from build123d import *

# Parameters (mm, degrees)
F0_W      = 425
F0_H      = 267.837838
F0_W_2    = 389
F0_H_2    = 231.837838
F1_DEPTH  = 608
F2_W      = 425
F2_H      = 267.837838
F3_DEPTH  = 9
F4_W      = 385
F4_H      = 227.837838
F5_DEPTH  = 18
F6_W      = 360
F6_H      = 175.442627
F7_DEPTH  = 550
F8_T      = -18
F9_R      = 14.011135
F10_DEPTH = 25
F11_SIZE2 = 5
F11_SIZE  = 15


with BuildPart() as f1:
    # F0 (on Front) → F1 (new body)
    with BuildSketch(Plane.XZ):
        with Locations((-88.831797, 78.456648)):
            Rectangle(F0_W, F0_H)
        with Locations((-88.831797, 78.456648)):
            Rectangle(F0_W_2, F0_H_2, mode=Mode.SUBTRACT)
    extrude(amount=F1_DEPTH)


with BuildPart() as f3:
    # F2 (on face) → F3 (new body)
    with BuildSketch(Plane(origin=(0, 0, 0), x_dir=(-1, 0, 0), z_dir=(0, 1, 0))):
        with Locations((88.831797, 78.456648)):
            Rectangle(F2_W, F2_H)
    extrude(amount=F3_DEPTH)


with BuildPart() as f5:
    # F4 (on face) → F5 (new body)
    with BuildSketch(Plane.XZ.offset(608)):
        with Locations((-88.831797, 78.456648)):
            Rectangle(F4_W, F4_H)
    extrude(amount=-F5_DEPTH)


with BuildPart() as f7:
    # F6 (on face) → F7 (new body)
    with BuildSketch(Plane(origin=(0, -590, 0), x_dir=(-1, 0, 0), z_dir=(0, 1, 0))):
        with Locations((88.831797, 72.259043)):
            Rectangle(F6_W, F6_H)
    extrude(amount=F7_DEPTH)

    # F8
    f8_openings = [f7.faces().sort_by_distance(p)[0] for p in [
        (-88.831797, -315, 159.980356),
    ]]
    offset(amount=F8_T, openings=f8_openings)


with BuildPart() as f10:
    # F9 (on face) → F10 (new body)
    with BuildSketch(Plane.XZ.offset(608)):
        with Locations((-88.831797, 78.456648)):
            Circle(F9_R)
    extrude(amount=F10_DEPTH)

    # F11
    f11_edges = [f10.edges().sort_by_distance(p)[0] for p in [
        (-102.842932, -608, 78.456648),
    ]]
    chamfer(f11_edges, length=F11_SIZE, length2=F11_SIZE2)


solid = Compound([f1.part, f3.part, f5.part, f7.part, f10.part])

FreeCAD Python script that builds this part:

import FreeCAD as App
import Part
import Sketcher
Q = App.Units.Quantity


def edges_at(feature, points):
    """Names of the edges that pass closest to the given points."""
    edges = feature.Shape.Edges
    near = lambda p: min(range(len(edges)), key=lambda i: edges[i].distToShape(Part.Vertex(*p))[0])
    return sorted({f"Edge{near(p) + 1}" for p in points})


def faces_at(feature, points):
    """Names of the faces that lie closest to the given points."""
    faces = feature.Shape.Faces
    near = lambda p: min(range(len(faces)), key=lambda i: faces[i].distToShape(Part.Vertex(*p))[0])
    return sorted({f"Face{near(p) + 1}" for p in points})


def add_polygon(sketch, points):
    """Adds a closed chain of lines whose ends are joined by coincident constraints."""
    first, n = sketch.GeometryCount, len(points)
    for a, b in zip(points, points[1:] + points[:1]):
        sketch.addGeometry(Part.LineSegment(App.Vector(*a, 0), App.Vector(*b, 0)), False)
    for i in range(n):
        sketch.addConstraint(Sketcher.Constraint("Coincident", first + i, 2, first + (i + 1) % n, 1))

doc = App.newDocument("Part")
body = doc.addObject("PartDesign::Body", "Body")

# Sketch on XZ plane
sketch1 = body.newObject("Sketcher::SketchObject", "Sketch")
sketch1.AttachmentSupport = (doc.getObject("XZ_Plane"), [""])
sketch1.MapMode = "FlatFace"
add_polygon(sketch1, [(-301.331797, 212.375567), (-301.331797, -55.462271), (123.668203, -55.462271), (123.668203, 212.375567)])  # lines 0-3
add_polygon(sketch1, [(105.668203, -37.462271), (-283.331797, -37.462271), (-283.331797, 194.375567), (105.668203, 194.375567)])  # lines 4-7
sketch1.addConstraint(Sketcher.Constraint("Vertical", 0))
sketch1.addConstraint(Sketcher.Constraint("Horizontal", 1))
sketch1.addConstraint(Sketcher.Constraint("Vertical", 2))
sketch1.addConstraint(Sketcher.Constraint("Horizontal", 3))
sketch1.addConstraint(Sketcher.Constraint("Horizontal", 4))
sketch1.addConstraint(Sketcher.Constraint("Vertical", 5))
sketch1.addConstraint(Sketcher.Constraint("Horizontal", 6))
sketch1.addConstraint(Sketcher.Constraint("Vertical", 7))
sketch1.addConstraint(Sketcher.Constraint("DistanceX", 1, 1, 1, 2, Q("425 mm")))
sketch1.addConstraint(Sketcher.Constraint("DistanceX", 4, 2, 4, 1, Q("389 mm")))
sketch1.addConstraint(Sketcher.Constraint("DistanceX", 0, 2, 4, 2, Q("18 mm")))
sketch1.addConstraint(Sketcher.Constraint("DistanceY", 0, 2, 4, 2, Q("18 mm")))
sketch1.addConstraint(Sketcher.Constraint("DistanceY", 5, 2, 3, 2, Q("18 mm")))
sketch1.addConstraint(Sketcher.Constraint("DistanceY", 0, 2, 0, 1, Q("267.837838 mm")))
sketch1.addConstraint(Sketcher.Constraint("DistanceY", 0, 2, -1, 1, Q("55.462271 mm")))
sketch1.addConstraint(Sketcher.Constraint("DistanceX", 0, 2, -1, 1, Q("301.331797 mm")))
pad1 = body.newObject("PartDesign::Pad", "Pad")
pad1.Profile = sketch1
pad1.Length = 608
body2 = doc.addObject("PartDesign::Body", "Body001")

# Sketch on XZ plane
sketch2 = body2.newObject("Sketcher::SketchObject", "Sketch001")
sketch2.AttachmentSupport = (doc.getObject("XZ_Plane001"), [""])
sketch2.MapMode = "FlatFace"
add_polygon(sketch2, [(123.668203, 212.375567), (123.668203, -55.462271), (-301.331797, -55.462271), (-301.331797, 212.375567)])  # lines 0-3
sketch2.addConstraint(Sketcher.Constraint("Vertical", 0))
sketch2.addConstraint(Sketcher.Constraint("Horizontal", 1))
sketch2.addConstraint(Sketcher.Constraint("Vertical", 2))
sketch2.addConstraint(Sketcher.Constraint("Horizontal", 3))
sketch2.addConstraint(Sketcher.Constraint("DistanceX", 1, 2, 1, 1, Q("425 mm")))
sketch2.addConstraint(Sketcher.Constraint("DistanceY", 0, 2, 0, 1, Q("267.837838 mm")))
sketch2.addConstraint(Sketcher.Constraint("DistanceY", 0, 2, -1, 1, Q("55.462271 mm")))
sketch2.addConstraint(Sketcher.Constraint("DistanceX", -1, 1, 0, 2, Q("123.668203 mm")))
pad2 = body2.newObject("PartDesign::Pad", "Pad001")
pad2.Profile = sketch2
pad2.Length = 9
pad2.Reversed = True
body3 = doc.addObject("PartDesign::Body", "Body002")

# Sketch on XZ plane
sketch3 = body3.newObject("Sketcher::SketchObject", "Sketch002")
sketch3.AttachmentSupport = (doc.getObject("XZ_Plane002"), [""])
sketch3.MapMode = "FlatFace"
sketch3.AttachmentOffset = App.Placement(App.Vector(0, 0, 608), App.Rotation())
add_polygon(sketch3, [(-281.331797, 192.375567), (-281.331797, -35.462271), (103.668203, -35.462271), (103.668203, 192.375567)])  # lines 0-3
sketch3.addConstraint(Sketcher.Constraint("Vertical", 0))
sketch3.addConstraint(Sketcher.Constraint("Horizontal", 1))
sketch3.addConstraint(Sketcher.Constraint("Vertical", 2))
sketch3.addConstraint(Sketcher.Constraint("Horizontal", 3))
sketch3.addConstraint(Sketcher.Constraint("DistanceX", 1, 1, 1, 2, Q("385 mm")))
sketch3.addConstraint(Sketcher.Constraint("DistanceY", 0, 2, 0, 1, Q("227.837838 mm")))
sketch3.addConstraint(Sketcher.Constraint("DistanceY", 0, 2, -1, 1, Q("35.462271 mm")))
sketch3.addConstraint(Sketcher.Constraint("DistanceX", 0, 2, -1, 1, Q("281.331797 mm")))
pad3 = body3.newObject("PartDesign::Pad", "Pad002")
pad3.Profile = sketch3
pad3.Length = 18
pad3.Reversed = True
body4 = doc.addObject("PartDesign::Body", "Body003")

# Sketch on XZ plane
sketch4 = body4.newObject("Sketcher::SketchObject", "Sketch003")
sketch4.AttachmentSupport = (doc.getObject("XZ_Plane003"), [""])
sketch4.MapMode = "FlatFace"
sketch4.AttachmentOffset = App.Placement(App.Vector(0, 0, 590), App.Rotation())
add_polygon(sketch4, [(91.168203, 159.980356), (91.168203, -15.462271), (-268.831797, -15.462271), (-268.831797, 159.980356)])  # lines 0-3
sketch4.addConstraint(Sketcher.Constraint("Vertical", 0))
sketch4.addConstraint(Sketcher.Constraint("Horizontal", 1))
sketch4.addConstraint(Sketcher.Constraint("Vertical", 2))
sketch4.addConstraint(Sketcher.Constraint("Horizontal", 3))
sketch4.addConstraint(Sketcher.Constraint("DistanceX", 1, 2, 1, 1, Q("360 mm")))
sketch4.addConstraint(Sketcher.Constraint("DistanceY", 0, 2, 0, 1, Q("175.442627 mm")))
sketch4.addConstraint(Sketcher.Constraint("DistanceY", 0, 2, -1, 1, Q("15.462271 mm")))
sketch4.addConstraint(Sketcher.Constraint("DistanceX", -1, 1, 0, 2, Q("91.168203 mm")))
pad4 = body4.newObject("PartDesign::Pad", "Pad003")
pad4.Profile = sketch4
pad4.Length = 550
pad4.Reversed = True
doc.recompute()

thickness = body4.newObject("PartDesign::Thickness", "Thickness")
thickness.Base = (pad4, faces_at(pad4, [(-88.832, -315, 159.98)]))
thickness.Value = 18
thickness.Reversed = True
thickness.Join = "Arc"
body5 = doc.addObject("PartDesign::Body", "Body004")

# Sketch on XZ plane
sketch5 = body5.newObject("Sketcher::SketchObject", "Sketch004")
sketch5.AttachmentSupport = (doc.getObject("XZ_Plane004"), [""])
sketch5.MapMode = "FlatFace"
sketch5.AttachmentOffset = App.Placement(App.Vector(0, 0, 608), App.Rotation())
sketch5.addGeometry(Part.Circle(App.Vector(-88.831797, 78.456648, 0), App.Vector(0, 0, 1), 14.011135), False)
sketch5.addConstraint(Sketcher.Constraint("Diameter", 0, Q("28.02227 mm")))
sketch5.addConstraint(Sketcher.Constraint("DistanceY", -1, 1, 0, 3, Q("78.456648 mm")))
sketch5.addConstraint(Sketcher.Constraint("DistanceX", 0, 3, -1, 1, Q("88.831797 mm")))
pad5 = body5.newObject("PartDesign::Pad", "Pad004")
pad5.Profile = sketch5
pad5.Length = 25
doc.recompute()

chamfer = body5.newObject("PartDesign::Chamfer", "Chamfer")
chamfer.Base = (pad5, edges_at(pad5, [(-102.843, -608, 78.457)]))
chamfer.ChamferType = "Two distances"
chamfer.Size = 15
chamfer.Size2 = 5

doc.recompute()
